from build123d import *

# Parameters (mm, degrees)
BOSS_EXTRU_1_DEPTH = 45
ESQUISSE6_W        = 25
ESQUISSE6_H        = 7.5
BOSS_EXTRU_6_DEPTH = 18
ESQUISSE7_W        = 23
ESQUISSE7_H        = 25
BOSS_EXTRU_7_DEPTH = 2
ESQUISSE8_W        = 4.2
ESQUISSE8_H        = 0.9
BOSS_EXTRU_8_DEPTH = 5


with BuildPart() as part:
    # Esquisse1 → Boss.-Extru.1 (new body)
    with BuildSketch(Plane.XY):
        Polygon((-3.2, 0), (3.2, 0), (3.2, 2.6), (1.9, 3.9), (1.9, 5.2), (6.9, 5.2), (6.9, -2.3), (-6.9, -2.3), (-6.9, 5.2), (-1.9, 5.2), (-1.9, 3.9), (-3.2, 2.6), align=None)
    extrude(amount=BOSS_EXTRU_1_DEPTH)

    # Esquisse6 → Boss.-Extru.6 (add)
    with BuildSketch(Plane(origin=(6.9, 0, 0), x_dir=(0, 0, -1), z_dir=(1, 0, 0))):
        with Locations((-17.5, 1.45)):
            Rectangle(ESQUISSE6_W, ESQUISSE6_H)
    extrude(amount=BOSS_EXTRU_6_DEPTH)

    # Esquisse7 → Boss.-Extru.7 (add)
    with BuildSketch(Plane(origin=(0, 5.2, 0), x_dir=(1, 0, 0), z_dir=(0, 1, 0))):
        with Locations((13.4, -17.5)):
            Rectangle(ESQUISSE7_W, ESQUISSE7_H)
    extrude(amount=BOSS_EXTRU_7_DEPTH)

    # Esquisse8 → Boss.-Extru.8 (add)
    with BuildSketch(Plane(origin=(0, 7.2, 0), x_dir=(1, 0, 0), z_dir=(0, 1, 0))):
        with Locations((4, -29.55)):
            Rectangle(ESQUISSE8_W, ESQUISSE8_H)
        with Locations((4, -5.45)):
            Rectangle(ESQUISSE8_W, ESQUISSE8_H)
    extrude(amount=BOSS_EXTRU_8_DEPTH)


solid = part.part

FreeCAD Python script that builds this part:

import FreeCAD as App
import Part
import Sketcher
from FreeCAD import Vector

doc = App.newDocument("Part")
body = doc.addObject("PartDesign::Body", "Body")

# Sketch on XY plane
sketch1 = body.newObject("Sketcher::SketchObject", "Sketch")
sketch1.AttachmentSupport = (doc.getObject("XY_Plane"), [""])
sketch1.MapMode = "FlatFace"
sketch1.addGeometry(Part.LineSegment(Vector(3.2, 0, 0), Vector(-3.2, 0, 0)), False)
sketch1.addGeometry(Part.LineSegment(Vector(-3.2, 0, 0), Vector(-3.2, 2.6, 0)), False)
sketch1.addGeometry(Part.LineSegment(Vector(-3.2, 2.6, 0), Vector(-1.9, 3.9, 0)), False)
sketch1.addGeometry(Part.LineSegment(Vector(-1.9, 3.9, 0), Vector(-1.9, 5.2, 0)), False)
sketch1.addGeometry(Part.LineSegment(Vector(-1.9, 5.2, 0), Vector(-6.9, 5.2, 0)), False)
sketch1.addGeometry(Part.LineSegment(Vector(-6.9, 5.2, 0), Vector(-6.9, -2.3, 0)), False)
sketch1.addGeometry(Part.LineSegment(Vector(-6.9, -2.3, 0), Vector(6.9, -2.3, 0)), False)
sketch1.addGeometry(Part.LineSegment(Vector(6.9, -2.3, 0), Vector(6.9, 5.2, 0)), False)
sketch1.addGeometry(Part.LineSegment(Vector(6.9, 5.2, 0), Vector(1.9, 5.2, 0)), False)
sketch1.addGeometry(Part.LineSegment(Vector(1.9, 5.2, 0), Vector(1.9, 3.9, 0)), False)
sketch1.addGeometry(Part.LineSegment(Vector(1.9, 3.9, 0), Vector(3.2, 2.6, 0)), False)
sketch1.addGeometry(Part.LineSegment(Vector(3.2, 2.6, 0), Vector(3.2, 0, 0)), False)
sketch1.addConstraint(Sketcher.Constraint("Coincident", 0, 2, 1, 1))
sketch1.addConstraint(Sketcher.Constraint("Coincident", 1, 2, 2, 1))
sketch1.addConstraint(Sketcher.Constraint("Coincident", 2, 2, 3, 1))
sketch1.addConstraint(Sketcher.Constraint("Coincident", 3, 2, 4, 1))
sketch1.addConstraint(Sketcher.Constraint("Coincident", 4, 2, 5, 1))
sketch1.addConstraint(Sketcher.Constraint("Coincident", 5, 2, 6, 1))
sketch1.addConstraint(Sketcher.Constraint("Coincident", 6, 2, 7, 1))
sketch1.addConstraint(Sketcher.Constraint("Coincident", 7, 2, 8, 1))
sketch1.addConstraint(Sketcher.Constraint("Coincident", 8, 2, 9, 1))
sketch1.addConstraint(Sketcher.Constraint("Coincident", 9, 2, 10, 1))
sketch1.addConstraint(Sketcher.Constraint("Coincident", 10, 2, 11, 1))
sketch1.addConstraint(Sketcher.Constraint("Coincident", 11, 2, 0, 1))
sketch1.addConstraint(Sketcher.Constraint("Horizontal", 0))
sketch1.addConstraint(Sketcher.Constraint("Vertical", 1))
sketch1.addConstraint(Sketcher.Constraint("Vertical", 3))
sketch1.addConstraint(Sketcher.Constraint("Horizontal", 4))
sketch1.addConstraint(Sketcher.Constraint("Vertical", 5))
sketch1.addConstraint(Sketcher.Constraint("Horizontal", 6))
sketch1.addConstraint(Sketcher.Constraint("Vertical", 7))
sketch1.addConstraint(Sketcher.Constraint("Horizontal", 8))
sketch1.addConstraint(Sketcher.Constraint("Vertical", 9))
sketch1.addConstraint(Sketcher.Constraint("Vertical", 11))
sketch1.addConstraint(Sketcher.Constraint("Symmetric", 0, 2, 11, 2, -1, 1))
sketch1.addConstraint(Sketcher.Constraint("Symmetric", 4, 2, 7, 2, -2))
sketch1.addConstraint(Sketcher.Constraint("Symmetric", 2, 2, 9, 2, -2))
sketch1.addConstraint(Sketcher.Constraint("Perpendicular", 2, 10))
sketch1.addConstraint(Sketcher.Constraint("Horizontal", 1, 2, 10, 2))
sketch1.addConstraint(Sketcher.Constraint("DistanceX", 4, 2, 4, 1, 5.0))
sketch1.addConstraint(Sketcher.Constraint("DistanceX", 0, 2, 0, 1, 6.4))
sketch1.addConstraint(Sketcher.Constraint("DistanceX", 6, 1, 6, 2, 13.8))
sketch1.addConstraint(Sketcher.Constraint("DistanceY", 1, 1, 1, 2, 2.6))
sketch1.addConstraint(Sketcher.Constraint("DistanceY", 3, 1, 3, 2, 1.3))
sketch1.addConstraint(Sketcher.Constraint("DistanceY", 5, 2, 5, 1, 7.5))
pad1 = body.newObject("PartDesign::Pad", "Pad")
pad1.Profile = sketch1
pad1.Length = 45

# Sketch on YZ plane
sketch2 = body.newObject("Sketcher::SketchObject", "Sketch001")
sketch2.AttachmentSupport = (doc.getObject("YZ_Plane"), [""])
sketch2.MapMode = "FlatFace"
sketch2.AttachmentOffset = App.Placement(Vector(0, 0, 6.9), App.Rotation())
sketch2.addGeometry(Part.LineSegment(Vector(5, 30, 0), Vector(-2, 30, 0)), False)
sketch2.addGeometry(Part.LineSegment(Vector(-2, 30, 0), Vector(-2, 5, 0)), False)
sketch2.addGeometry(Part.LineSegment(Vector(-2, 5, 0), Vector(5, 5, 0)), False)
sketch2.addGeometry(Part.LineSegment(Vector(5, 5, 0), Vector(5, 30, 0)), False)
sketch2.addConstraint(Sketcher.Constraint("Coincident", 0, 2, 1, 1))
sketch2.addConstraint(Sketcher.Constraint("Coincident", 1, 2, 2, 1))
sketch2.addConstraint(Sketcher.Constraint("Coincident", 2, 2, 3, 1))
sketch2.addConstraint(Sketcher.Constraint("Coincident", 3, 2, 0, 1))
sketch2.addConstraint(Sketcher.Constraint("Horizontal", 0))
sketch2.addConstraint(Sketcher.Constraint("Vertical", 1))
sketch2.addConstraint(Sketcher.Constraint("Horizontal", 2))
sketch2.addConstraint(Sketcher.Constraint("Vertical", 3))
sketch2.addConstraint(Sketcher.Constraint("DistanceY", 1, 2, 1, 1, 25.0))
sketch2.addConstraint(Sketcher.Constraint("DistanceX", 0, 2, 0, 1, 7.5))
sketch2.addConstraint(Sketcher.Constraint("DistanceY", -1, 1, 0, 2, 30.0))
sketch2.addConstraint(Sketcher.Constraint("DistanceX", 0, 2, -1, 1, 2.3))
pad2 = body.newObject("PartDesign::Pad", "Pad001")
pad2.Profile = sketch2
pad2.Length = 18

# Sketch on XZ plane
sketch3 = body.newObject("Sketcher::SketchObject", "Sketch002")
sketch3.AttachmentSupport = (doc.getObject("XZ_Plane"), [""])
sketch3.MapMode = "FlatFace"
sketch3.AttachmentOffset = App.Placement(Vector(0, 0, -5.2), App.Rotation())
sketch3.addGeometry(Part.LineSegment(Vector(2, 5, 0), Vector(2, 30, 0)), False)
sketch3.addGeometry(Part.LineSegment(Vector(2, 30, 0), Vector(25, 30, 0)), False)
sketch3.addGeometry(Part.LineSegment(Vector(25, 30, 0), Vector(25, 5, 0)), False)
sketch3.addGeometry(Part.LineSegment(Vector(25, 5, 0), Vector(2, 5, 0)), False)
sketch3.addConstraint(Sketcher.Constraint("Coincident", 0, 2, 1, 1))
sketch3.addConstraint(Sketcher.Constraint("Coincident", 1, 2, 2, 1))
sketch3.addConstraint(Sketcher.Constraint("Coincident", 2, 2, 3, 1))
sketch3.addConstraint(Sketcher.Constraint("Coincident", 3, 2, 0, 1))
sketch3.addConstraint(Sketcher.Constraint("Vertical", 0))
sketch3.addConstraint(Sketcher.Constraint("Horizontal", 1))
sketch3.addConstraint(Sketcher.Constraint("Vertical", 2))
sketch3.addConstraint(Sketcher.Constraint("Horizontal", 3))
sketch3.addConstraint(Sketcher.Constraint("DistanceX", 1, 1, 1, 2, 23.0))
sketch3.addConstraint(Sketcher.Constraint("DistanceY", 0, 1, 0, 2, 25.0))
sketch3.addConstraint(Sketcher.Constraint("DistanceY", -1, 1, 0, 2, 30.0))
sketch3.addConstraint(Sketcher.Constraint("DistanceX", -1, 1, 0, 2, 1.9))
pad3 = body.newObject("PartDesign::Pad", "Pad002")
pad3.Profile = sketch3
pad3.Length = 2
pad3.Reversed = True

# Sketch on XZ plane
sketch4 = body.newObject("Sketcher::SketchObject", "Sketch003")
sketch4.AttachmentSupport = (doc.getObject("XZ_Plane"), [""])
sketch4.MapMode = "FlatFace"
sketch4.AttachmentOffset = App.Placement(Vector(0, 0, -7.2), App.Rotation())
sketch4.addGeometry(Part.LineSegment(Vector(1.9, 29.1, 0), Vector(1.9, 30, 0)), False)
sketch4.addGeometry(Part.LineSegment(Vector(1.9, 30, 0), Vector(6.1, 30, 0)), False)
sketch4.addGeometry(Part.LineSegment(Vector(6.1, 30, 0), Vector(6.1, 29.1, 0)), False)
sketch4.addGeometry(Part.LineSegment(Vector(6.1, 29.1, 0), Vector(1.9, 29.1, 0)), False)
sketch4.addGeometry(Part.LineSegment(Vector(1.9, 5, 0), Vector(1.9, 5.9, 0)), False)
sketch4.addGeometry(Part.LineSegment(Vector(1.9, 5.9, 0), Vector(6.1, 5.9, 0)), False)
sketch4.addGeometry(Part.LineSegment(Vector(6.1, 5.9, 0), Vector(6.1, 5, 0)), False)
sketch4.addGeometry(Part.LineSegment(Vector(6.1, 5, 0), Vector(1.9, 5, 0)), False)
sketch4.addConstraint(Sketcher.Constraint("Coincident", 0, 2, 1, 1))
sketch4.addConstraint(Sketcher.Constraint("Coincident", 1, 2, 2, 1))
sketch4.addConstraint(Sketcher.Constraint("Coincident", 2, 2, 3, 1))
sketch4.addConstraint(Sketcher.Constraint("Coincident", 3, 2, 0, 1))
sketch4.addConstraint(Sketcher.Constraint("Coincident", 4, 2, 5, 1))
sketch4.addConstraint(Sketcher.Constraint("Coincident", 5, 2, 6, 1))
sketch4.addConstraint(Sketcher.Constraint("Coincident", 6, 2, 7, 1))
sketch4.addConstraint(Sketcher.Constraint("Coincident", 7, 2, 4, 1))
sketch4.addConstraint(Sketcher.Constraint("Vertical", 0))
sketch4.addConstraint(Sketcher.Constraint("Horizontal", 1))
sketch4.addConstraint(Sketcher.Constraint("Vertical", 2))
sketch4.addConstraint(Sketcher.Constraint("Horizontal", 3))
sketch4.addConstraint(Sketcher.Constraint("Vertical", 4))
sketch4.addConstraint(Sketcher.Constraint("Horizontal", 5))
sketch4.addConstraint(Sketcher.Constraint("Vertical", 6))
sketch4.addConstraint(Sketcher.Constraint("Horizontal", 7))
sketch4.addConstraint(Sketcher.Constraint("Vertical", 3, 2, 4, 2))
sketch4.addConstraint(Sketcher.Constraint("Vertical", 2, 2, 5, 2))
sketch4.addConstraint(Sketcher.Constraint("Equal", 2, 4))
sketch4.addConstraint(Sketcher.Constraint("DistanceX", 1, 1, 1, 2, 4.2))
sketch4.addConstraint(Sketcher.Constraint("DistanceY", 0, 1, 0, 2, 0.9))
sketch4.addConstraint(Sketcher.Constraint("DistanceY", -1, 1, 0, 2, 30.0))
sketch4.addConstraint(Sketcher.Constraint("DistanceY", -1, 1, 6, 2, 5.0))
sketch4.addConstraint(Sketcher.Constraint("DistanceX", -1, 1, 0, 2, 1.9))
pad4 = body.newObject("PartDesign::Pad", "Pad003")
pad4.Profile = sketch4
pad4.Length = 5
pad4.Reversed = True

doc.recompute()
